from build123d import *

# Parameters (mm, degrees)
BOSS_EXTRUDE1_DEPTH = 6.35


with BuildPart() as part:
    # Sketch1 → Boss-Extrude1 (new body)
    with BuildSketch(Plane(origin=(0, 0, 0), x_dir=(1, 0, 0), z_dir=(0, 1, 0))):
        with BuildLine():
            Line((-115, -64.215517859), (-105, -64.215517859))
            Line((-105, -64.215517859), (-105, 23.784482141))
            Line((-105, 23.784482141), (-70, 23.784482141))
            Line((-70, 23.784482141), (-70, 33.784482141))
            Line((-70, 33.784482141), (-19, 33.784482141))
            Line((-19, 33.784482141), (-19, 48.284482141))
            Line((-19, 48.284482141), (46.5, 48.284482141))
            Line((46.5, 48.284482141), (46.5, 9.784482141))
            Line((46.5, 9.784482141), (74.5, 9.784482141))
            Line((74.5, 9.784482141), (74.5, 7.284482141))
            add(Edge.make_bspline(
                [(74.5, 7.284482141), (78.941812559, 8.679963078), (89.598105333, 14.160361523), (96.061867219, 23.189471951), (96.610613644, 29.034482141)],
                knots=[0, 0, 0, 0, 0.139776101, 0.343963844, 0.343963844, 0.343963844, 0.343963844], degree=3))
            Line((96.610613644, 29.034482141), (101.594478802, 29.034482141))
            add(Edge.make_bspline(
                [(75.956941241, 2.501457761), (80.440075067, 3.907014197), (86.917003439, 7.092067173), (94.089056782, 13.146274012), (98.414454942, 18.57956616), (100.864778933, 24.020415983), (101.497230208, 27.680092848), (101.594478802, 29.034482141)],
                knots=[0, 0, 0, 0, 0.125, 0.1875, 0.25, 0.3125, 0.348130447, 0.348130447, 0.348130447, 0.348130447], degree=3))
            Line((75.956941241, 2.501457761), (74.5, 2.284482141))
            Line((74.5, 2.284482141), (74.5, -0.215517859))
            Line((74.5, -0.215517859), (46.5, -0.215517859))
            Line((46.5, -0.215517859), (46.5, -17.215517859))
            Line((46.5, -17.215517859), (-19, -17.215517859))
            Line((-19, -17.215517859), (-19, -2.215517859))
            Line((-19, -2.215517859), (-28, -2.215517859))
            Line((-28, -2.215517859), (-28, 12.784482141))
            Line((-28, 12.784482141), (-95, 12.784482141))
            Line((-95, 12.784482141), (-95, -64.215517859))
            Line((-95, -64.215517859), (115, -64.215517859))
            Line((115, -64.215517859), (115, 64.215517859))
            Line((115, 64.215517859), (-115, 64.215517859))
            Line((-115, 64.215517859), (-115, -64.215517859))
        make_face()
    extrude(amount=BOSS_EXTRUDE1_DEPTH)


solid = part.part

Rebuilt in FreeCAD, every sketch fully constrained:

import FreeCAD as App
import Part
import Sketcher

doc = App.newDocument("Part")
params = doc.addObject("Spreadsheet::Sheet", "Params")
for row, (alias, value) in enumerate([
    ("sketch1_width", "10 mm"),
    ("sketch1_width2", "35 mm"),
    ("sketch1_width3", "51 mm"),
    ("sketch1_width4", "28 mm"),
    ("sketch1_width5", "9 mm"),
    ("pad1_length", "6.35 mm"),
], start=1):
    params.set(f"A{row}", alias)
    params.set(f"B{row}", "=" + value)
    params.setAlias(f"B{row}", alias)

body = doc.addObject("PartDesign::Body", "Body")

sketch1 = doc.addObject("Sketcher::SketchObject", "Sketch")
body.addObject(sketch1)
sketch1.AttachmentSupport = (doc.XZ_Plane, [""])
sketch1.MapMode = "FlatFace"
sketch1.addGeometry([
    Part.LineSegment(App.Vector(-115, 64.215518, 0), App.Vector(-105, 64.215518, 0)),
    Part.LineSegment(App.Vector(-105, 64.215518, 0), App.Vector(-105, -23.784482, 0)),
    Part.LineSegment(App.Vector(-105, -23.784482, 0), App.Vector(-70, -23.784482, 0)),
    Part.LineSegment(App.Vector(-70, -23.784482, 0), App.Vector(-70, -33.784482, 0)),
    Part.LineSegment(App.Vector(-70, -33.784482, 0), App.Vector(-19, -33.784482, 0)),
    Part.LineSegment(App.Vector(-19, -33.784482, 0), App.Vector(-19, -48.284482, 0)),
    Part.LineSegment(App.Vector(-19, -48.284482, 0), App.Vector(46.5, -48.284482, 0)),
    Part.LineSegment(App.Vector(46.5, -48.284482, 0), App.Vector(46.5, -9.784482, 0)),
    Part.LineSegment(App.Vector(46.5, -9.784482, 0), App.Vector(74.5, -9.784482, 0)),
    Part.LineSegment(App.Vector(74.5, -9.784482, 0), App.Vector(74.5, -7.284482, 0)),
    Part.BSplineCurve([App.Vector(74.5, -7.284482, 0), App.Vector(78.941813, -8.679963, 0), App.Vector(89.598105, -14.160362, 0), App.Vector(96.061867, -23.189472, 0), App.Vector(96.610614, -29.034482, 0)], [4, 1, 4], [0, 0.139776101, 0.343963844], False, 3, [1, 1, 1, 1, 1], False),
    Part.LineSegment(App.Vector(96.610614, -29.034482, 0), App.Vector(101.594479, -29.034482, 0)),
    Part.BSplineCurve([App.Vector(75.956941, -2.501458, 0), App.Vector(80.440075, -3.907014, 0), App.Vector(86.917003, -7.092067, 0), App.Vector(94.089057, -13.146274, 0), App.Vector(98.414455, -18.579566, 0), App.Vector(100.864779, -24.020416, 0), App.Vector(101.49723, -27.680093, 0), App.Vector(101.594479, -29.034482, 0)], [4, 1, 1, 1, 1, 4], [0, 0.125, 0.1875, 0.25, 0.3125, 0.348130447], False, 3, [1, 1, 1, 1, 1, 1, 1, 1], False),
    Part.LineSegment(App.Vector(75.956941, -2.501458, 0), App.Vector(74.5, -2.284482, 0)),
    Part.LineSegment(App.Vector(74.5, -2.284482, 0), App.Vector(74.5, 0.215518, 0)),
    Part.LineSegment(App.Vector(74.5, 0.215518, 0), App.Vector(46.5, 0.215518, 0)),
    Part.LineSegment(App.Vector(46.5, 0.215518, 0), App.Vector(46.5, 17.215518, 0)),
    Part.LineSegment(App.Vector(46.5, 17.215518, 0), App.Vector(-19, 17.215518, 0)),
    Part.LineSegment(App.Vector(-19, 17.215518, 0), App.Vector(-19, 2.215518, 0)),
    Part.LineSegment(App.Vector(-19, 2.215518, 0), App.Vector(-28, 2.215518, 0)),
    Part.LineSegment(App.Vector(-28, 2.215518, 0), App.Vector(-28, -12.784482, 0)),
    Part.LineSegment(App.Vector(-28, -12.784482, 0), App.Vector(-95, -12.784482, 0)),
    Part.LineSegment(App.Vector(-95, -12.784482, 0), App.Vector(-95, 64.215518, 0)),
    Part.LineSegment(App.Vector(-95, 64.215518, 0), App.Vector(115, 64.215518, 0)),
    Part.LineSegment(App.Vector(115, 64.215518, 0), App.Vector(115, -64.215518, 0)),
    Part.LineSegment(App.Vector(115, -64.215518, 0), App.Vector(-115, -64.215518, 0)),
    Part.LineSegment(App.Vector(-115, -64.215518, 0), App.Vector(-115, 64.215518, 0)),
], False)
sketch1.addConstraint([
    Sketcher.Constraint("Block", 10),
    Sketcher.Constraint("Block", 12),
    Sketcher.Constraint("Coincident", 0, 2, 1, 1),
    Sketcher.Constraint("Coincident", 1, 2, 2, 1),
    Sketcher.Constraint("Coincident", 2, 2, 3, 1),
    Sketcher.Constraint("Coincident", 3, 2, 4, 1),
    Sketcher.Constraint("Coincident", 4, 2, 5, 1),
    Sketcher.Constraint("Coincident", 5, 2, 6, 1),
    Sketcher.Constraint("Coincident", 6, 2, 7, 1),
    Sketcher.Constraint("Coincident", 7, 2, 8, 1),
    Sketcher.Constraint("Coincident", 8, 2, 9, 1),
    Sketcher.Constraint("Coincident", 9, 2, 10, 1),
    Sketcher.Constraint("Coincident", 10, 2, 11, 1),
    Sketcher.Constraint("Coincident", 11, 2, 12, 2),
    Sketcher.Constraint("Coincident", 12, 1, 13, 1),
    Sketcher.Constraint("Coincident", 13, 2, 14, 1),
    Sketcher.Constraint("Coincident", 14, 2, 15, 1),
    Sketcher.Constraint("Coincident", 15, 2, 16, 1),
    Sketcher.Constraint("Coincident", 16, 2, 17, 1),
    Sketcher.Constraint("Coincident", 17, 2, 18, 1),
    Sketcher.Constraint("Coincident", 18, 2, 19, 1),
    Sketcher.Constraint("Coincident", 19, 2, 20, 1),
    Sketcher.Constraint("Coincident", 20, 2, 21, 1),
    Sketcher.Constraint("Coincident", 21, 2, 22, 1),
    Sketcher.Constraint("Coincident", 22, 2, 23, 1),
    Sketcher.Constraint("Coincident", 23, 2, 24, 1),
    Sketcher.Constraint("Coincident", 24, 2, 25, 1),
    Sketcher.Constraint("Coincident", 25, 2, 26, 1),
    Sketcher.Constraint("Coincident", 26, 2, 0, 1),
    Sketcher.Constraint("Horizontal", 0),
    Sketcher.Constraint("Vertical", 1),
    Sketcher.Constraint("Horizontal", 2),
    Sketcher.Constraint("Vertical", 3),
    Sketcher.Constraint("Horizontal", 4),
    Sketcher.Constraint("Vertical", 5),
    Sketcher.Constraint("Horizontal", 6),
    Sketcher.Constraint("Vertical", 7),
    Sketcher.Constraint("Horizontal", 8),
    Sketcher.Constraint("Vertical", 9),
    Sketcher.Constraint("Vertical", 14),
    Sketcher.Constraint("Horizontal", 15),
    Sketcher.Constraint("Vertical", 16),
    Sketcher.Constraint("Horizontal", 17),
    Sketcher.Constraint("Vertical", 18),
    Sketcher.Constraint("Horizontal", 19),
    Sketcher.Constraint("Vertical", 20),
    Sketcher.Constraint("Horizontal", 21),
    Sketcher.Constraint("Vertical", 22),
    Sketcher.Constraint("Horizontal", 23),
    Sketcher.Constraint("Vertical", 24),
    Sketcher.Constraint("Horizontal", 25),
    Sketcher.Constraint("Vertical", 26),
    Sketcher.Constraint("Symmetric", 23, 2, 25, 2, -1, 1),
    Sketcher.Constraint("Horizontal", 0, 2, 22, 2),
    Sketcher.Constraint("Vertical", 9, 2, 13, 2),
    Sketcher.Constraint("Vertical", 7, 2, 15, 2),
    Sketcher.Constraint("Vertical", 5, 2, 17, 2),
    Sketcher.Constraint("Equal", 0, 3),
    Sketcher.Constraint("Equal", 9, 14),
    Sketcher.Constraint("Equal", 18, 20),
    Sketcher.Constraint("DistanceX", 0, 1, 0, 2, 10.0),
    Sketcher.Constraint("DistanceX", 2, 1, 2, 2, 35.0),
    Sketcher.Constraint("DistanceX", 4, 1, 4, 2, 51.0),
    Sketcher.Constraint("DistanceX", 8, 1, 8, 2, 28.0),
    Sketcher.Constraint("DistanceX", 19, 2, 19, 1, 9.0),
    Sketcher.Constraint("DistanceX", 21, 2, 21, 1, 67.0),
    Sketcher.Constraint("DistanceX", 23, 1, 23, 2, 210.0),
    Sketcher.Constraint("DistanceY", 1, 2, 1, 1, 88.0),
    Sketcher.Constraint("DistanceY", 16, 1, 16, 2, 17.0),
    Sketcher.Constraint("DistanceY", 18, 2, 18, 1, 15.0),
    Sketcher.Constraint("DistanceY", 22, 1, 22, 2, 77.0),
    Sketcher.Constraint("DistanceY", 5, 2, 5, 1, 14.5),
    Sketcher.Constraint("DistanceY", 7, 1, 7, 2, 38.5),
    Sketcher.Constraint("DistanceY", 9, 1, 9, 2, 2.5),
])
sketch1.setExpression("Constraints[60]", "Params.sketch1_width")
sketch1.setExpression("Constraints[61]", "Params.sketch1_width2")
sketch1.setExpression("Constraints[62]", "Params.sketch1_width3")
sketch1.setExpression("Constraints[63]", "Params.sketch1_width4")
sketch1.setExpression("Constraints[64]", "Params.sketch1_width5")
pad1 = doc.addObject("PartDesign::Pad", "Pad")
body.addObject(pad1)
pad1.Profile = sketch1
pad1.setExpression("Length", "Params.pad1_length")
pad1.Reversed = True

doc.recompute()
